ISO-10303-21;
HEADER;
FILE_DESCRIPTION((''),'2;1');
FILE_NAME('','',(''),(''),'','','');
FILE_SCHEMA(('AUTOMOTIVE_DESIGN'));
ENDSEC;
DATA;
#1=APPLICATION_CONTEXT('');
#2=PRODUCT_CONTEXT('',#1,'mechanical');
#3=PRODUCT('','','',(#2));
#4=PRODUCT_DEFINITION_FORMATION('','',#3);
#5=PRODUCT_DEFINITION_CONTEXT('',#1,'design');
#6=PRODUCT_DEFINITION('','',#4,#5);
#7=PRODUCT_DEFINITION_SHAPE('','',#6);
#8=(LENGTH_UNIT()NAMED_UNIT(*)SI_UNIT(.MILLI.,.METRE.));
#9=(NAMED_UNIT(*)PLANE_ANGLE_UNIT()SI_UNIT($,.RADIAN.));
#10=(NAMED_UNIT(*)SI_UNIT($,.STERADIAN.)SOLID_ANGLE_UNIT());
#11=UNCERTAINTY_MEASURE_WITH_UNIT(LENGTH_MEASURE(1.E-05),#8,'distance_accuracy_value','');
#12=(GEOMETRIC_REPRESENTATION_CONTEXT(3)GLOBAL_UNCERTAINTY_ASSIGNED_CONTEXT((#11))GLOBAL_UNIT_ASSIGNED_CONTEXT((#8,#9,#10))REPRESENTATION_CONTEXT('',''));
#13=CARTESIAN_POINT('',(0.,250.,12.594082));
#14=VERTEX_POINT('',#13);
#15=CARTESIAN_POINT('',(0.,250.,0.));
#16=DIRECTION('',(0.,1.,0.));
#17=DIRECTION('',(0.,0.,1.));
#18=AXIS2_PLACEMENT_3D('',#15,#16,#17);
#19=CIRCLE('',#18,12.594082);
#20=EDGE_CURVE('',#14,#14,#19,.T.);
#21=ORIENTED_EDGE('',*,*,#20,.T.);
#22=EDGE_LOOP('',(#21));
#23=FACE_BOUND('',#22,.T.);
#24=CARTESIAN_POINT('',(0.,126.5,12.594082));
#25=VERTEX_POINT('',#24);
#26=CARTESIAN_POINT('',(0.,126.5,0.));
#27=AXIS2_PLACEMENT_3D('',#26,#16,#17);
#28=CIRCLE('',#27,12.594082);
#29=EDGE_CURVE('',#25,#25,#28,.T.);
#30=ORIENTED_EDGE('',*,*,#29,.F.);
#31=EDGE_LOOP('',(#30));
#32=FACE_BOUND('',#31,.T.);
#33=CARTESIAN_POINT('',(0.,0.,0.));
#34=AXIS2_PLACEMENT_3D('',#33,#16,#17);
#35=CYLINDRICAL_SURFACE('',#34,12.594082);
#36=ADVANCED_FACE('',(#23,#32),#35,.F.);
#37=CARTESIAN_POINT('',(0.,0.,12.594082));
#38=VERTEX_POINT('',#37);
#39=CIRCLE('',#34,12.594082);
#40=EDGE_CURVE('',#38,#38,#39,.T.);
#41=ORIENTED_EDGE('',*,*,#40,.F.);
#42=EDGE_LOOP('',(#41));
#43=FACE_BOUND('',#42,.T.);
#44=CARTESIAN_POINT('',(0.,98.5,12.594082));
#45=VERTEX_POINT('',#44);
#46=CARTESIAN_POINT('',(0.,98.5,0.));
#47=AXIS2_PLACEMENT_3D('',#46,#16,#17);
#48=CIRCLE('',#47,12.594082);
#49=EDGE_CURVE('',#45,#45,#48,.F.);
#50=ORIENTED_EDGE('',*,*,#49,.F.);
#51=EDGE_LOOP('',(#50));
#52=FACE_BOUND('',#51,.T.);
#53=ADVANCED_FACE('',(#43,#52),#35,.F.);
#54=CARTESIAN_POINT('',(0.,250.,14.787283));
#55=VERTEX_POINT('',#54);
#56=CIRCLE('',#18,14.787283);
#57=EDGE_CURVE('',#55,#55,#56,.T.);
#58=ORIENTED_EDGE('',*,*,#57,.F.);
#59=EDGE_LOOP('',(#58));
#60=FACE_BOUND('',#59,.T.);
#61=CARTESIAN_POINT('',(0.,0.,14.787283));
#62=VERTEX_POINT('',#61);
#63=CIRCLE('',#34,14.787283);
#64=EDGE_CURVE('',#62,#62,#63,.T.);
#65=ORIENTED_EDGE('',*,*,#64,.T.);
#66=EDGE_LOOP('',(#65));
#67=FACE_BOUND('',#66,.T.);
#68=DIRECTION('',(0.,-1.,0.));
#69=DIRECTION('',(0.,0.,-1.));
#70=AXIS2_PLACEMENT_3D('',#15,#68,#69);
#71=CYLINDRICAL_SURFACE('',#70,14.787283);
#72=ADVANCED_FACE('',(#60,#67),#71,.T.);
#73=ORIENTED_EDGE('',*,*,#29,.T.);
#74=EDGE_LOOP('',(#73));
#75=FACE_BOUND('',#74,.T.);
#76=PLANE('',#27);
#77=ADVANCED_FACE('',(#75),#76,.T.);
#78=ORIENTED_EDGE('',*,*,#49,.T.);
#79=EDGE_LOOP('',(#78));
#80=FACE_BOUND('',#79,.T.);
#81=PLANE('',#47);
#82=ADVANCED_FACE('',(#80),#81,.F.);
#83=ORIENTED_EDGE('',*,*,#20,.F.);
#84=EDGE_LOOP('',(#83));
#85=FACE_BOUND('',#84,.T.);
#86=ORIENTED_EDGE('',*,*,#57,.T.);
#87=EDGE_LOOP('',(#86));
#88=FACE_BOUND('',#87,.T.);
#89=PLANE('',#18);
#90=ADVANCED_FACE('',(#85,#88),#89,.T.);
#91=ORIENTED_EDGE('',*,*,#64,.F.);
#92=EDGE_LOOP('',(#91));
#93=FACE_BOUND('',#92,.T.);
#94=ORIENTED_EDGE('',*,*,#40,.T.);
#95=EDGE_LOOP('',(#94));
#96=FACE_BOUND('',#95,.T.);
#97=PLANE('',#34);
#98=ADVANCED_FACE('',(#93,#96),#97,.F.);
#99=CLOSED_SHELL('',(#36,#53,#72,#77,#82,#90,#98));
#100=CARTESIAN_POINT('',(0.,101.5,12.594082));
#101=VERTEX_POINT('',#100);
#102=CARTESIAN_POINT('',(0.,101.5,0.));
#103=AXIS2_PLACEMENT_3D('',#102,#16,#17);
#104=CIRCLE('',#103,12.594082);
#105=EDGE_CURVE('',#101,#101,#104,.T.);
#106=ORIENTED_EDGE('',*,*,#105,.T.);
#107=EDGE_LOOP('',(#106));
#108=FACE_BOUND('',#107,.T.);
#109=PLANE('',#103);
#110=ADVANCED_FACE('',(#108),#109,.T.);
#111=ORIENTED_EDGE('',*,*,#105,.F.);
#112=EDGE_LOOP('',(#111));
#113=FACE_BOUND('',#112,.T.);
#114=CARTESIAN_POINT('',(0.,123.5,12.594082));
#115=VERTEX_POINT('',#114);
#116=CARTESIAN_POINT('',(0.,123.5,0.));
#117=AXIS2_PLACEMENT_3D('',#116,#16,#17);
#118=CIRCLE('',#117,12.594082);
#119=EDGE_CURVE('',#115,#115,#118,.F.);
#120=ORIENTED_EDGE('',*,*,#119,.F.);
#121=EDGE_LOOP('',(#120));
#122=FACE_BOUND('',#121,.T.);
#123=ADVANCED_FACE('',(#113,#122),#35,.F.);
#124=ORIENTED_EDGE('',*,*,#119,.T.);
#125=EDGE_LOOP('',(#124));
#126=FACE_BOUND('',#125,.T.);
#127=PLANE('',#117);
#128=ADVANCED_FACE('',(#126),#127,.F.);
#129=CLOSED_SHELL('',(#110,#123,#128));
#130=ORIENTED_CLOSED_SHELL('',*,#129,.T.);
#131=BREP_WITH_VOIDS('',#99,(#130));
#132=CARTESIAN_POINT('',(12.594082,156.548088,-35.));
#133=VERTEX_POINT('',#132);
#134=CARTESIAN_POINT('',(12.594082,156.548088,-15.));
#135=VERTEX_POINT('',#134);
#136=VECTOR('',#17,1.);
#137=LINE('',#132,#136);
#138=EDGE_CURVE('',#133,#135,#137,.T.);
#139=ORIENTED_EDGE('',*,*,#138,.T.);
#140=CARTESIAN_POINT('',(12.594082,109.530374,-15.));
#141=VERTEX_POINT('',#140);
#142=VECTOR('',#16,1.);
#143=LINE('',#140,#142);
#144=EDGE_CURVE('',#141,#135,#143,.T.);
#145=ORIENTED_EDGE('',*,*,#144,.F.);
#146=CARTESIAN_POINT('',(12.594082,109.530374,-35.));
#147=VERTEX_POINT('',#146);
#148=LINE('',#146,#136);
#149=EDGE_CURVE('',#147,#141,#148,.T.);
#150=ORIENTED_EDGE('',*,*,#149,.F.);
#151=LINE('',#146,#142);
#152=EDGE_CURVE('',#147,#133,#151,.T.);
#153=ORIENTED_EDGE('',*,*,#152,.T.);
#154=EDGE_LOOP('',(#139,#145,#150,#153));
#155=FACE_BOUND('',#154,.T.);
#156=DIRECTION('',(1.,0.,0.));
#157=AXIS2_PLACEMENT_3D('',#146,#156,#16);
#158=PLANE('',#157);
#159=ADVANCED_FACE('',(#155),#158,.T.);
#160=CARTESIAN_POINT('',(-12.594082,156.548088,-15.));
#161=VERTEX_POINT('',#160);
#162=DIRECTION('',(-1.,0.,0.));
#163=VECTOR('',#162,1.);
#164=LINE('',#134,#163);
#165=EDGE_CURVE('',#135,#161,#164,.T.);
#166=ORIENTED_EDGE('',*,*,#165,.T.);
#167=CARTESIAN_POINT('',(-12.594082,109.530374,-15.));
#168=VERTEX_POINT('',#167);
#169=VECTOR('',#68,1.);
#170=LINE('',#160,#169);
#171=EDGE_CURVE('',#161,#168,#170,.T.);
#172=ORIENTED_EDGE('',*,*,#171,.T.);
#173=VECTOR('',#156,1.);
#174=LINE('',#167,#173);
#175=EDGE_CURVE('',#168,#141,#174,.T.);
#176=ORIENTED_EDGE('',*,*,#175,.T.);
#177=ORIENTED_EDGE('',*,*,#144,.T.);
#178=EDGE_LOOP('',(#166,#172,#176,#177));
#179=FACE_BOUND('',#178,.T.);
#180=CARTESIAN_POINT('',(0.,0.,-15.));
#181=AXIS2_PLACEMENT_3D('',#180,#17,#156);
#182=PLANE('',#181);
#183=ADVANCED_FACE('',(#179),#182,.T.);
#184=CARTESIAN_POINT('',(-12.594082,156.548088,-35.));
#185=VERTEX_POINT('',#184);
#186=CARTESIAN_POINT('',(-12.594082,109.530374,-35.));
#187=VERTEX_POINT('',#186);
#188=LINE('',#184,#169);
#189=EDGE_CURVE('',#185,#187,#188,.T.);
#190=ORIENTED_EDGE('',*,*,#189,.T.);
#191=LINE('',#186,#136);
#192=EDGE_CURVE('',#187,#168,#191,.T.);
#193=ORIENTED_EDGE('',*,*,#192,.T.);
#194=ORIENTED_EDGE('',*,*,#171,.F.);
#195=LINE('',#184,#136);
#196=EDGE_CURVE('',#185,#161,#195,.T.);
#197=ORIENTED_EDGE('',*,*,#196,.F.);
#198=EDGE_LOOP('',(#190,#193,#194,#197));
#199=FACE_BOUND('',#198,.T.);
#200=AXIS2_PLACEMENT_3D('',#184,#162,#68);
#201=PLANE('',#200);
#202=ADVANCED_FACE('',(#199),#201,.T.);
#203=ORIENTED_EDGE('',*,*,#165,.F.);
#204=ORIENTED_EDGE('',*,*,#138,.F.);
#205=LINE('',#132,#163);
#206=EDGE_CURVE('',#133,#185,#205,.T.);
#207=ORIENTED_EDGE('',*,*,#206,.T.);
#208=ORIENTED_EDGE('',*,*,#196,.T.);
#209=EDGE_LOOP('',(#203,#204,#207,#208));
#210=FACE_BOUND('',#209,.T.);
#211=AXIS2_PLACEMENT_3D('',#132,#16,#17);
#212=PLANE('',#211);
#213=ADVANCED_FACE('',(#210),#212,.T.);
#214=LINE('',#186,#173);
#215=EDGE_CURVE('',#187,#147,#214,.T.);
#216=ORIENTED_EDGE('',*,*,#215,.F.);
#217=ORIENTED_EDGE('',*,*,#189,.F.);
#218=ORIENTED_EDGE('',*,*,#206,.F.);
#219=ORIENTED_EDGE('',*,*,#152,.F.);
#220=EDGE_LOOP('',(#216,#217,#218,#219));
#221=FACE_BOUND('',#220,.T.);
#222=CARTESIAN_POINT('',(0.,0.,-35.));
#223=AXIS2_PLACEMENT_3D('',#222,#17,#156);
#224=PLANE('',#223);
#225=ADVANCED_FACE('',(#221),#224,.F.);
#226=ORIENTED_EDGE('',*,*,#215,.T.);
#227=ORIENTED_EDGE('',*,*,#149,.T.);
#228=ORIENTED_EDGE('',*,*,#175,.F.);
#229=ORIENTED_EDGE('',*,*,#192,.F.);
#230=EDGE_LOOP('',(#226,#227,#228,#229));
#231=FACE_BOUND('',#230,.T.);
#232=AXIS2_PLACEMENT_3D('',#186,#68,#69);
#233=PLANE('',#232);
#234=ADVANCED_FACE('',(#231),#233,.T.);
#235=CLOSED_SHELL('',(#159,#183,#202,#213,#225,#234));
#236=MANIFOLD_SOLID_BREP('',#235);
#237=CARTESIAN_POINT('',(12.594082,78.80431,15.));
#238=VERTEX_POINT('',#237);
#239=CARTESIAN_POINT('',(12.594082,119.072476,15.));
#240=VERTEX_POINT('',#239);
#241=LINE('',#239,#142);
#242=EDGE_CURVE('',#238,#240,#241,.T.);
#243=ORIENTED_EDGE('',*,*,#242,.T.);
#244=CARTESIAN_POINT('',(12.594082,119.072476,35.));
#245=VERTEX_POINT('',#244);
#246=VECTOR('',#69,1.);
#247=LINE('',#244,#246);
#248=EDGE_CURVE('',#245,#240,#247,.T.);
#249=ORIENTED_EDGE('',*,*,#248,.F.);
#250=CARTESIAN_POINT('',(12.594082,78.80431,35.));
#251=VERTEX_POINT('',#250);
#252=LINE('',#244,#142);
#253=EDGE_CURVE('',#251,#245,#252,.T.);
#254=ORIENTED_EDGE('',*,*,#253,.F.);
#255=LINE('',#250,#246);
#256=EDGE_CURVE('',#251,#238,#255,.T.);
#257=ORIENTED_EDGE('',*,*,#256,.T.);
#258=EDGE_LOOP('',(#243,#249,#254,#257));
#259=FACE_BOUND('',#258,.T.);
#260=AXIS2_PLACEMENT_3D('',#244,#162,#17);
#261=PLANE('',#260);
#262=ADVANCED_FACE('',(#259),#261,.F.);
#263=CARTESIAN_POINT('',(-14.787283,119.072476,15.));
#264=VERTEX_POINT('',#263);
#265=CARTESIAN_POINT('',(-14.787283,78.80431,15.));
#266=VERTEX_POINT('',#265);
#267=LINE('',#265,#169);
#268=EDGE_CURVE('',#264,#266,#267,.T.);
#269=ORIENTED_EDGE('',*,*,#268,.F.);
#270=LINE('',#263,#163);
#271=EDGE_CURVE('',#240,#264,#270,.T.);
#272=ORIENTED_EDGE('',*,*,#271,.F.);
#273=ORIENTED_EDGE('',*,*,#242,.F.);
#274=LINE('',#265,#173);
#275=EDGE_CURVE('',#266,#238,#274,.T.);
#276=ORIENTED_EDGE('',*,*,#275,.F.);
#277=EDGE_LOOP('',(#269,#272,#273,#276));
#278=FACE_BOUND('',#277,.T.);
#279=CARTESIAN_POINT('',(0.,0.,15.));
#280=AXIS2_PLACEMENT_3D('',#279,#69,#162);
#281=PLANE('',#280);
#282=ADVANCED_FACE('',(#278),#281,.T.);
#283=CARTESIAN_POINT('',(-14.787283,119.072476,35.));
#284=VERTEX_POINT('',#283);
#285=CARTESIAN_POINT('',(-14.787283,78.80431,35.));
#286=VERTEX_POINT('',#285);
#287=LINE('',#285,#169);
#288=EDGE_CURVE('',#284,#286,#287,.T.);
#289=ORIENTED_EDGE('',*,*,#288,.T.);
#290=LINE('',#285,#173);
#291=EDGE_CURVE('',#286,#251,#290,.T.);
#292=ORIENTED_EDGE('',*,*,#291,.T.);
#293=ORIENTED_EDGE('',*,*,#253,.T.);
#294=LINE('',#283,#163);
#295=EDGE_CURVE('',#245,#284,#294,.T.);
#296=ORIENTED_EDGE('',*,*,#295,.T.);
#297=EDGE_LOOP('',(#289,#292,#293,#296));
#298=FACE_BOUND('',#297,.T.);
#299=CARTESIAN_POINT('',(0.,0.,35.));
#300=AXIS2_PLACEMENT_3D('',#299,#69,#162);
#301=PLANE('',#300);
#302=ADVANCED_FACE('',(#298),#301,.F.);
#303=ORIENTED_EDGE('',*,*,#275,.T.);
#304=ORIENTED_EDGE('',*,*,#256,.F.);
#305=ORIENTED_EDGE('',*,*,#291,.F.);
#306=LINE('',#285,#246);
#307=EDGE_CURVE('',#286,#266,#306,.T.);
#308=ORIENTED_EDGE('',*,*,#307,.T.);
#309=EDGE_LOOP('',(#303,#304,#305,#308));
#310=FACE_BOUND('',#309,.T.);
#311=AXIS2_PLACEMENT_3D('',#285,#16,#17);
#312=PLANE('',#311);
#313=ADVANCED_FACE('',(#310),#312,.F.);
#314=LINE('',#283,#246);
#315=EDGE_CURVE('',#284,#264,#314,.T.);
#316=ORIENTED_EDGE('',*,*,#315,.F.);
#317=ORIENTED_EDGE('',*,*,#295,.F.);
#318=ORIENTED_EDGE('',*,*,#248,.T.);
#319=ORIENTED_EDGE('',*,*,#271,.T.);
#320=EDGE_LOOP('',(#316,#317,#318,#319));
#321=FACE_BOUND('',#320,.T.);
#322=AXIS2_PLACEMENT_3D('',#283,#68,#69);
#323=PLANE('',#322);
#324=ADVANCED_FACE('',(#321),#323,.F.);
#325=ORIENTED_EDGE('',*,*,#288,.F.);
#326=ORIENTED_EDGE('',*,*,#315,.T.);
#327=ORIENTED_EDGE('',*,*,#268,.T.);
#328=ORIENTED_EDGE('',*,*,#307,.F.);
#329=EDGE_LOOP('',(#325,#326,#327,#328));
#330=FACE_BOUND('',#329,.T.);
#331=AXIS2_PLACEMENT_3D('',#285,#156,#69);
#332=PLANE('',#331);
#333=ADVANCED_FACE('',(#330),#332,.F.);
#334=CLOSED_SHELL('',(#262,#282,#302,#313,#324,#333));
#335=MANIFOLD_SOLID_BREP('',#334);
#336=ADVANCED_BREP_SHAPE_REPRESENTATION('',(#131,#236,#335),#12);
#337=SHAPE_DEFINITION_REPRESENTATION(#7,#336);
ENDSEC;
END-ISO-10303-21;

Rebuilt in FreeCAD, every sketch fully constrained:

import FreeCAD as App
import Part
import Sketcher

doc = App.newDocument("Part")
body = doc.addObject("PartDesign::Body", "Body")

# Sketch on XZ plane
sketch1 = doc.addObject("Sketcher::SketchObject", "Sketch")
body.addObject(sketch1)
sketch1.AttachmentSupport = (doc.XZ_Plane, [""])
sketch1.MapMode = "FlatFace"
sketch1.addGeometry(Part.Circle(App.Vector(0, 0, 0), App.Vector(0, 0, 1), 14.787283), False)
sketch1.addConstraint(Sketcher.Constraint("Coincident", 0, 3, -1, 1))
sketch1.addConstraint(Sketcher.Constraint("Diameter", 0, 29.574567))
pad1 = doc.addObject("PartDesign::Pad", "Pad")
body.addObject(pad1)
pad1.Profile = sketch1
pad1.Length = 250
pad1.Reversed = True

# Sketch on XZ plane
sketch2 = doc.addObject("Sketcher::SketchObject", "Sketch001")
body.addObject(sketch2)
sketch2.AttachmentSupport = (doc.XZ_Plane, [""])
sketch2.MapMode = "FlatFace"
sketch2.AttachmentOffset = App.Placement(App.Vector(0, 0, -250), App.Rotation())
sketch2.addGeometry(Part.Circle(App.Vector(0, 0, 0), App.Vector(0, 0, 1), 12.594082), False)
sketch2.addConstraint(Sketcher.Constraint("Coincident", 0, 3, -1, 1))
sketch2.addConstraint(Sketcher.Constraint("Diameter", 0, 25.188165))
pocket1 = doc.addObject("PartDesign::Pocket", "Pocket")
body.addObject(pocket1)
pocket1.Profile = sketch2
pocket1.Length = 250
pocket1.Reversed = True

# Sketch on XZ plane
sketch3 = doc.addObject("Sketcher::SketchObject", "Sketch002")
body.addObject(sketch3)
sketch3.AttachmentSupport = (doc.XZ_Plane, [""])
sketch3.MapMode = "FlatFace"
sketch3.AttachmentOffset = App.Placement(App.Vector(0, 0, -125), App.Rotation())
sketch3.addGeometry(Part.Circle(App.Vector(0, 0, 0), App.Vector(0, 0, 1), 12.594082), False)
sketch3.addConstraint(Sketcher.Constraint("Coincident", 0, 3, -1, 1))
sketch3.addConstraint(Sketcher.Constraint("Diameter", 0, 25.188165))
pad2 = doc.addObject("PartDesign::Pad", "Pad001")
body.addObject(pad2)
pad2.Profile = sketch3
pad2.Length = 3
pad2.Midplane = True

# Sketch on XZ plane
sketch4 = doc.addObject("Sketcher::SketchObject", "Sketch003")
body.addObject(sketch4)
sketch4.AttachmentSupport = (doc.XZ_Plane, [""])
sketch4.MapMode = "FlatFace"
sketch4.AttachmentOffset = App.Placement(App.Vector(0, 0, -100), App.Rotation())
sketch4.addGeometry(Part.Circle(App.Vector(0, 0, 0), App.Vector(0, 0, 1), 12.594082), False)
sketch4.addConstraint(Sketcher.Constraint("Coincident", 0, 3, -1, 1))
sketch4.addConstraint(Sketcher.Constraint("Diameter", 0, 25.188165))
pad3 = doc.addObject("PartDesign::Pad", "Pad002")
body.addObject(pad3)
pad3.Profile = sketch4
pad3.Length = 3
pad3.Midplane = True
body2 = doc.addObject("PartDesign::Body", "Body001")

# Sketch on XY plane
sketch5 = doc.addObject("Sketcher::SketchObject", "Sketch004")
body2.addObject(sketch5)
sketch5.AttachmentSupport = (doc.getObject("XY_Plane001"), [""])
sketch5.MapMode = "FlatFace"
sketch5.AttachmentOffset = App.Placement(App.Vector(0, 0, 15), App.Rotation())
sketch5.addGeometry(Part.LineSegment(App.Vector(-14.787283, 119.072476, 0), App.Vector(-14.787283, 78.80431, 0)), False)
sketch5.addGeometry(Part.LineSegment(App.Vector(-14.787283, 78.80431, 0), App.Vector(12.594082, 78.80431, 0)), False)
sketch5.addGeometry(Part.LineSegment(App.Vector(12.594082, 78.80431, 0), App.Vector(12.594082, 119.072476, 0)), False)
sketch5.addGeometry(Part.LineSegment(App.Vector(12.594082, 119.072476, 0), App.Vector(-14.787283, 119.072476, 0)), False)
sketch5.addConstraint(Sketcher.Constraint("Coincident", 0, 2, 1, 1))
sketch5.addConstraint(Sketcher.Constraint("Coincident", 1, 2, 2, 1))
sketch5.addConstraint(Sketcher.Constraint("Coincident", 2, 2, 3, 1))
sketch5.addConstraint(Sketcher.Constraint("Coincident", 3, 2, 0, 1))
sketch5.addConstraint(Sketcher.Constraint("Vertical", 0))
sketch5.addConstraint(Sketcher.Constraint("Horizontal", 1))
sketch5.addConstraint(Sketcher.Constraint("Vertical", 2))
sketch5.addConstraint(Sketcher.Constraint("Horizontal", 3))
sketch5.addConstraint(Sketcher.Constraint("DistanceX", 1, 1, 1, 2, 27.381366))
sketch5.addConstraint(Sketcher.Constraint("DistanceY", 0, 2, 0, 1, 40.268166))
sketch5.addConstraint(Sketcher.Constraint("DistanceY", -1, 1, 0, 2, 78.80431))
sketch5.addConstraint(Sketcher.Constraint("DistanceX", 0, 2, -1, 1, 14.787283))
pad4 = doc.addObject("PartDesign::Pad", "Pad003")
body2.addObject(pad4)
pad4.Profile = sketch5
pad4.Length = 20
body3 = doc.addObject("PartDesign::Body", "Body002")

# Sketch on XY plane
sketch6 = doc.addObject("Sketcher::SketchObject", "Sketch005")
body3.addObject(sketch6)
sketch6.AttachmentSupport = (doc.getObject("XY_Plane002"), [""])
sketch6.MapMode = "FlatFace"
sketch6.AttachmentOffset = App.Placement(App.Vector(0, 0, -15), App.Rotation())
sketch6.addGeometry(Part.LineSegment(App.Vector(-12.594082, 156.548088, 0), App.Vector(-12.594082, 109.530374, 0)), False)
sketch6.addGeometry(Part.LineSegment(App.Vector(-12.594082, 109.530374, 0), App.Vector(12.594082, 109.530374, 0)), False)
sketch6.addGeometry(Part.LineSegment(App.Vector(12.594082, 109.530374, 0), App.Vector(12.594082, 156.548088, 0)), False)
sketch6.addGeometry(Part.LineSegment(App.Vector(12.594082, 156.548088, 0), App.Vector(-12.594082, 156.548088, 0)), False)
sketch6.addConstraint(Sketcher.Constraint("Coincident", 0, 2, 1, 1))
sketch6.addConstraint(Sketcher.Constraint("Coincident", 1, 2, 2, 1))
sketch6.addConstraint(Sketcher.Constraint("Coincident", 2, 2, 3, 1))
sketch6.addConstraint(Sketcher.Constraint("Coincident", 3, 2, 0, 1))
sketch6.addConstraint(Sketcher.Constraint("Vertical", 0))
sketch6.addConstraint(Sketcher.Constraint("Horizontal", 1))
sketch6.addConstraint(Sketcher.Constraint("Vertical", 2))
sketch6.addConstraint(Sketcher.Constraint("Horizontal", 3))
sketch6.addConstraint(Sketcher.Constraint("DistanceX", 1, 1, 1, 2, 25.188165))
sketch6.addConstraint(Sketcher.Constraint("DistanceY", 0, 2, 0, 1, 47.017714))
sketch6.addConstraint(Sketcher.Constraint("DistanceX", 0, 2, -1, 1, 12.594082))
sketch6.addConstraint(Sketcher.Constraint("DistanceY", -1, 1, 0, 2, 109.530374))
pad5 = doc.addObject("PartDesign::Pad", "Pad004")
body3.addObject(pad5)
pad5.Profile = sketch6
pad5.Length = 20
pad5.Reversed = True

doc.recompute()
